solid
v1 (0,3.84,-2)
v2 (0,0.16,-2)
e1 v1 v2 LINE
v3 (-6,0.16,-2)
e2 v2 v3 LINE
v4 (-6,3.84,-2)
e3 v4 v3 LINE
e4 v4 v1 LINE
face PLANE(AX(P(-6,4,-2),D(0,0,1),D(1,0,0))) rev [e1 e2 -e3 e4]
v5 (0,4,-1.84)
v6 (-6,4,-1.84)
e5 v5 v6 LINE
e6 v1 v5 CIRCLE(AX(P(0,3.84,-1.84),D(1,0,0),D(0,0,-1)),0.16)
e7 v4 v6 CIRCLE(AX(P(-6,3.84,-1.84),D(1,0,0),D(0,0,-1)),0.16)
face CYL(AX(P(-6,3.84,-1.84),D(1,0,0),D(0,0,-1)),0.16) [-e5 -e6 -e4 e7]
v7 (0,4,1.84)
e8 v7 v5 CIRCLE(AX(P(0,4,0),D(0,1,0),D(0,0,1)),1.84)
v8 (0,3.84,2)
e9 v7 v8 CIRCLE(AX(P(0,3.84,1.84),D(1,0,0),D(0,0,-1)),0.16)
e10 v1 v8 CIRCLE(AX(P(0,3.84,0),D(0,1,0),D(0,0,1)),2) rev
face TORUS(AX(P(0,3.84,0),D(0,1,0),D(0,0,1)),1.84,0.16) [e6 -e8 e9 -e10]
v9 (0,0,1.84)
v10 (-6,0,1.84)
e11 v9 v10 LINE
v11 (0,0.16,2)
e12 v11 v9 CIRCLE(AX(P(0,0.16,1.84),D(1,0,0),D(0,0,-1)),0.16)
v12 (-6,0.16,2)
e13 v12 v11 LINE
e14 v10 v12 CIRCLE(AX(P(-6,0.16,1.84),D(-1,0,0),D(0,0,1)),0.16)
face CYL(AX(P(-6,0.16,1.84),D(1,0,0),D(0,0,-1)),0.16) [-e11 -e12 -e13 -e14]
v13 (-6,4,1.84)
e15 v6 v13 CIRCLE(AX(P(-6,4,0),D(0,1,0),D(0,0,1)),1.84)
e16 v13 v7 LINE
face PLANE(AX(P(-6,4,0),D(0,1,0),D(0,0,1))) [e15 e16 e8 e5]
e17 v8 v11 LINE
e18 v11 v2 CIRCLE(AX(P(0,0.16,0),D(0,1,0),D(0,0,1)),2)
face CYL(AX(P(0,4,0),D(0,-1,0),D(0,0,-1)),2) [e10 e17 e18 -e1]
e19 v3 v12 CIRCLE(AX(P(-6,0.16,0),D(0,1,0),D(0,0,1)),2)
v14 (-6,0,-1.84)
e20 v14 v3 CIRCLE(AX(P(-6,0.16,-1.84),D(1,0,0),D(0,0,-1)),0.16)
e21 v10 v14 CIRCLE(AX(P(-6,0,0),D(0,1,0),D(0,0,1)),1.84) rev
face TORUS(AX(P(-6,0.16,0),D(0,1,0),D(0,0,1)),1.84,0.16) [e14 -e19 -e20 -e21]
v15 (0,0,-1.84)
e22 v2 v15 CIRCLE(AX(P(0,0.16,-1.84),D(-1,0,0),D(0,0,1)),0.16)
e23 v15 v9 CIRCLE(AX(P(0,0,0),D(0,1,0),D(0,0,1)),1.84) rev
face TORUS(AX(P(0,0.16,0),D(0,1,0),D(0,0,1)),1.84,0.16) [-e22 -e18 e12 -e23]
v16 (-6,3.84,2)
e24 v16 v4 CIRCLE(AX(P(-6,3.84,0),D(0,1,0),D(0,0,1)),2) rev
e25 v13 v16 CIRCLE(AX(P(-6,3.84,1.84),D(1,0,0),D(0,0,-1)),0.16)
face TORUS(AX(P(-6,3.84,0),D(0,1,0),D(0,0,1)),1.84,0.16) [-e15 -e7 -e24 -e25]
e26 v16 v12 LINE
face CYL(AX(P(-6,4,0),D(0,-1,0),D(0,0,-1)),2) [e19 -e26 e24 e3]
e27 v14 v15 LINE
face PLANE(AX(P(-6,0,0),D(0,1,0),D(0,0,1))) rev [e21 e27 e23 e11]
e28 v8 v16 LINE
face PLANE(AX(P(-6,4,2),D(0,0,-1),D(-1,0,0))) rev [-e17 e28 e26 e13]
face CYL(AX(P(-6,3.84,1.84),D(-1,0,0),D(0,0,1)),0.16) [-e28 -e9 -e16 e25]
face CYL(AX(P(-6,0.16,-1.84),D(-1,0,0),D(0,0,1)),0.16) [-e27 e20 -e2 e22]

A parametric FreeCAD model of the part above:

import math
import FreeCAD as App
import Part
import Sketcher

V = App.Vector


def edges_at(feature, points):
    """Names of the edges that pass closest to the given points."""
    edges = feature.Shape.Edges
    near = lambda p: min(range(len(edges)), key=lambda i: edges[i].distToShape(Part.Vertex(*p))[0])
    return sorted({f"Edge{near(p) + 1}" for p in points})

doc = App.newDocument("Part")
body = doc.addObject("PartDesign::Body", "Body")

# Sketch on XZ plane
sketch1 = body.newObject("Sketcher::SketchObject", "Sketch")
sketch1.AttachmentSupport = (doc.getObject("XZ_Plane"), [""])
sketch1.MapMode = "FlatFace"
sketch1.addGeometry([
    Part.LineSegment(V(0, -2, 0), V(-6, -2, 0)),
    Part.ArcOfCircle(Part.Circle(V(-6, 0, 0), V(0, 0, 1), 2), math.radians(90), math.radians(270)),
    Part.LineSegment(V(-6, 2, 0), V(0, 2, 0)),
    Part.ArcOfCircle(Part.Circle(V(0, 0, 0), V(0, 0, 1), 2), math.radians(-90), math.radians(90)),
], False)
sketch1.addConstraint([
    Sketcher.Constraint("Tangent", 0, 2, 1, 2),
    Sketcher.Constraint("Tangent", 1, 1, 2, 1),
    Sketcher.Constraint("Tangent", 2, 2, 3, 2),
    Sketcher.Constraint("Tangent", 3, 1, 0, 1),
    Sketcher.Constraint("Horizontal", 0),
    Sketcher.Constraint("Horizontal", 2),
    Sketcher.Constraint("Coincident", 3, 3, -1, 1),
    Sketcher.Constraint("Radius", 1, 2.0),
    Sketcher.Constraint("DistanceX", 0, 2, 0, 1, 6.0),
])
pad1 = body.newObject("PartDesign::Pad", "Pad")
pad1.Profile = sketch1
pad1.Length = 4
pad1.Reversed = True
doc.recompute()

fillet = body.newObject("PartDesign::Fillet", "Fillet")
fillet.Base = (pad1, edges_at(pad1, [
    (2, 4, 0),
    (-3, 4, -2),
    (-8, 4, 0),
    (-3, 0, -2),
    (2, 0, 0),
    (-3, 0, 2),
    (-8, 0, 0),
    (-3, 4, 2),
]))
fillet.Radius = 0.16

doc.recompute()
